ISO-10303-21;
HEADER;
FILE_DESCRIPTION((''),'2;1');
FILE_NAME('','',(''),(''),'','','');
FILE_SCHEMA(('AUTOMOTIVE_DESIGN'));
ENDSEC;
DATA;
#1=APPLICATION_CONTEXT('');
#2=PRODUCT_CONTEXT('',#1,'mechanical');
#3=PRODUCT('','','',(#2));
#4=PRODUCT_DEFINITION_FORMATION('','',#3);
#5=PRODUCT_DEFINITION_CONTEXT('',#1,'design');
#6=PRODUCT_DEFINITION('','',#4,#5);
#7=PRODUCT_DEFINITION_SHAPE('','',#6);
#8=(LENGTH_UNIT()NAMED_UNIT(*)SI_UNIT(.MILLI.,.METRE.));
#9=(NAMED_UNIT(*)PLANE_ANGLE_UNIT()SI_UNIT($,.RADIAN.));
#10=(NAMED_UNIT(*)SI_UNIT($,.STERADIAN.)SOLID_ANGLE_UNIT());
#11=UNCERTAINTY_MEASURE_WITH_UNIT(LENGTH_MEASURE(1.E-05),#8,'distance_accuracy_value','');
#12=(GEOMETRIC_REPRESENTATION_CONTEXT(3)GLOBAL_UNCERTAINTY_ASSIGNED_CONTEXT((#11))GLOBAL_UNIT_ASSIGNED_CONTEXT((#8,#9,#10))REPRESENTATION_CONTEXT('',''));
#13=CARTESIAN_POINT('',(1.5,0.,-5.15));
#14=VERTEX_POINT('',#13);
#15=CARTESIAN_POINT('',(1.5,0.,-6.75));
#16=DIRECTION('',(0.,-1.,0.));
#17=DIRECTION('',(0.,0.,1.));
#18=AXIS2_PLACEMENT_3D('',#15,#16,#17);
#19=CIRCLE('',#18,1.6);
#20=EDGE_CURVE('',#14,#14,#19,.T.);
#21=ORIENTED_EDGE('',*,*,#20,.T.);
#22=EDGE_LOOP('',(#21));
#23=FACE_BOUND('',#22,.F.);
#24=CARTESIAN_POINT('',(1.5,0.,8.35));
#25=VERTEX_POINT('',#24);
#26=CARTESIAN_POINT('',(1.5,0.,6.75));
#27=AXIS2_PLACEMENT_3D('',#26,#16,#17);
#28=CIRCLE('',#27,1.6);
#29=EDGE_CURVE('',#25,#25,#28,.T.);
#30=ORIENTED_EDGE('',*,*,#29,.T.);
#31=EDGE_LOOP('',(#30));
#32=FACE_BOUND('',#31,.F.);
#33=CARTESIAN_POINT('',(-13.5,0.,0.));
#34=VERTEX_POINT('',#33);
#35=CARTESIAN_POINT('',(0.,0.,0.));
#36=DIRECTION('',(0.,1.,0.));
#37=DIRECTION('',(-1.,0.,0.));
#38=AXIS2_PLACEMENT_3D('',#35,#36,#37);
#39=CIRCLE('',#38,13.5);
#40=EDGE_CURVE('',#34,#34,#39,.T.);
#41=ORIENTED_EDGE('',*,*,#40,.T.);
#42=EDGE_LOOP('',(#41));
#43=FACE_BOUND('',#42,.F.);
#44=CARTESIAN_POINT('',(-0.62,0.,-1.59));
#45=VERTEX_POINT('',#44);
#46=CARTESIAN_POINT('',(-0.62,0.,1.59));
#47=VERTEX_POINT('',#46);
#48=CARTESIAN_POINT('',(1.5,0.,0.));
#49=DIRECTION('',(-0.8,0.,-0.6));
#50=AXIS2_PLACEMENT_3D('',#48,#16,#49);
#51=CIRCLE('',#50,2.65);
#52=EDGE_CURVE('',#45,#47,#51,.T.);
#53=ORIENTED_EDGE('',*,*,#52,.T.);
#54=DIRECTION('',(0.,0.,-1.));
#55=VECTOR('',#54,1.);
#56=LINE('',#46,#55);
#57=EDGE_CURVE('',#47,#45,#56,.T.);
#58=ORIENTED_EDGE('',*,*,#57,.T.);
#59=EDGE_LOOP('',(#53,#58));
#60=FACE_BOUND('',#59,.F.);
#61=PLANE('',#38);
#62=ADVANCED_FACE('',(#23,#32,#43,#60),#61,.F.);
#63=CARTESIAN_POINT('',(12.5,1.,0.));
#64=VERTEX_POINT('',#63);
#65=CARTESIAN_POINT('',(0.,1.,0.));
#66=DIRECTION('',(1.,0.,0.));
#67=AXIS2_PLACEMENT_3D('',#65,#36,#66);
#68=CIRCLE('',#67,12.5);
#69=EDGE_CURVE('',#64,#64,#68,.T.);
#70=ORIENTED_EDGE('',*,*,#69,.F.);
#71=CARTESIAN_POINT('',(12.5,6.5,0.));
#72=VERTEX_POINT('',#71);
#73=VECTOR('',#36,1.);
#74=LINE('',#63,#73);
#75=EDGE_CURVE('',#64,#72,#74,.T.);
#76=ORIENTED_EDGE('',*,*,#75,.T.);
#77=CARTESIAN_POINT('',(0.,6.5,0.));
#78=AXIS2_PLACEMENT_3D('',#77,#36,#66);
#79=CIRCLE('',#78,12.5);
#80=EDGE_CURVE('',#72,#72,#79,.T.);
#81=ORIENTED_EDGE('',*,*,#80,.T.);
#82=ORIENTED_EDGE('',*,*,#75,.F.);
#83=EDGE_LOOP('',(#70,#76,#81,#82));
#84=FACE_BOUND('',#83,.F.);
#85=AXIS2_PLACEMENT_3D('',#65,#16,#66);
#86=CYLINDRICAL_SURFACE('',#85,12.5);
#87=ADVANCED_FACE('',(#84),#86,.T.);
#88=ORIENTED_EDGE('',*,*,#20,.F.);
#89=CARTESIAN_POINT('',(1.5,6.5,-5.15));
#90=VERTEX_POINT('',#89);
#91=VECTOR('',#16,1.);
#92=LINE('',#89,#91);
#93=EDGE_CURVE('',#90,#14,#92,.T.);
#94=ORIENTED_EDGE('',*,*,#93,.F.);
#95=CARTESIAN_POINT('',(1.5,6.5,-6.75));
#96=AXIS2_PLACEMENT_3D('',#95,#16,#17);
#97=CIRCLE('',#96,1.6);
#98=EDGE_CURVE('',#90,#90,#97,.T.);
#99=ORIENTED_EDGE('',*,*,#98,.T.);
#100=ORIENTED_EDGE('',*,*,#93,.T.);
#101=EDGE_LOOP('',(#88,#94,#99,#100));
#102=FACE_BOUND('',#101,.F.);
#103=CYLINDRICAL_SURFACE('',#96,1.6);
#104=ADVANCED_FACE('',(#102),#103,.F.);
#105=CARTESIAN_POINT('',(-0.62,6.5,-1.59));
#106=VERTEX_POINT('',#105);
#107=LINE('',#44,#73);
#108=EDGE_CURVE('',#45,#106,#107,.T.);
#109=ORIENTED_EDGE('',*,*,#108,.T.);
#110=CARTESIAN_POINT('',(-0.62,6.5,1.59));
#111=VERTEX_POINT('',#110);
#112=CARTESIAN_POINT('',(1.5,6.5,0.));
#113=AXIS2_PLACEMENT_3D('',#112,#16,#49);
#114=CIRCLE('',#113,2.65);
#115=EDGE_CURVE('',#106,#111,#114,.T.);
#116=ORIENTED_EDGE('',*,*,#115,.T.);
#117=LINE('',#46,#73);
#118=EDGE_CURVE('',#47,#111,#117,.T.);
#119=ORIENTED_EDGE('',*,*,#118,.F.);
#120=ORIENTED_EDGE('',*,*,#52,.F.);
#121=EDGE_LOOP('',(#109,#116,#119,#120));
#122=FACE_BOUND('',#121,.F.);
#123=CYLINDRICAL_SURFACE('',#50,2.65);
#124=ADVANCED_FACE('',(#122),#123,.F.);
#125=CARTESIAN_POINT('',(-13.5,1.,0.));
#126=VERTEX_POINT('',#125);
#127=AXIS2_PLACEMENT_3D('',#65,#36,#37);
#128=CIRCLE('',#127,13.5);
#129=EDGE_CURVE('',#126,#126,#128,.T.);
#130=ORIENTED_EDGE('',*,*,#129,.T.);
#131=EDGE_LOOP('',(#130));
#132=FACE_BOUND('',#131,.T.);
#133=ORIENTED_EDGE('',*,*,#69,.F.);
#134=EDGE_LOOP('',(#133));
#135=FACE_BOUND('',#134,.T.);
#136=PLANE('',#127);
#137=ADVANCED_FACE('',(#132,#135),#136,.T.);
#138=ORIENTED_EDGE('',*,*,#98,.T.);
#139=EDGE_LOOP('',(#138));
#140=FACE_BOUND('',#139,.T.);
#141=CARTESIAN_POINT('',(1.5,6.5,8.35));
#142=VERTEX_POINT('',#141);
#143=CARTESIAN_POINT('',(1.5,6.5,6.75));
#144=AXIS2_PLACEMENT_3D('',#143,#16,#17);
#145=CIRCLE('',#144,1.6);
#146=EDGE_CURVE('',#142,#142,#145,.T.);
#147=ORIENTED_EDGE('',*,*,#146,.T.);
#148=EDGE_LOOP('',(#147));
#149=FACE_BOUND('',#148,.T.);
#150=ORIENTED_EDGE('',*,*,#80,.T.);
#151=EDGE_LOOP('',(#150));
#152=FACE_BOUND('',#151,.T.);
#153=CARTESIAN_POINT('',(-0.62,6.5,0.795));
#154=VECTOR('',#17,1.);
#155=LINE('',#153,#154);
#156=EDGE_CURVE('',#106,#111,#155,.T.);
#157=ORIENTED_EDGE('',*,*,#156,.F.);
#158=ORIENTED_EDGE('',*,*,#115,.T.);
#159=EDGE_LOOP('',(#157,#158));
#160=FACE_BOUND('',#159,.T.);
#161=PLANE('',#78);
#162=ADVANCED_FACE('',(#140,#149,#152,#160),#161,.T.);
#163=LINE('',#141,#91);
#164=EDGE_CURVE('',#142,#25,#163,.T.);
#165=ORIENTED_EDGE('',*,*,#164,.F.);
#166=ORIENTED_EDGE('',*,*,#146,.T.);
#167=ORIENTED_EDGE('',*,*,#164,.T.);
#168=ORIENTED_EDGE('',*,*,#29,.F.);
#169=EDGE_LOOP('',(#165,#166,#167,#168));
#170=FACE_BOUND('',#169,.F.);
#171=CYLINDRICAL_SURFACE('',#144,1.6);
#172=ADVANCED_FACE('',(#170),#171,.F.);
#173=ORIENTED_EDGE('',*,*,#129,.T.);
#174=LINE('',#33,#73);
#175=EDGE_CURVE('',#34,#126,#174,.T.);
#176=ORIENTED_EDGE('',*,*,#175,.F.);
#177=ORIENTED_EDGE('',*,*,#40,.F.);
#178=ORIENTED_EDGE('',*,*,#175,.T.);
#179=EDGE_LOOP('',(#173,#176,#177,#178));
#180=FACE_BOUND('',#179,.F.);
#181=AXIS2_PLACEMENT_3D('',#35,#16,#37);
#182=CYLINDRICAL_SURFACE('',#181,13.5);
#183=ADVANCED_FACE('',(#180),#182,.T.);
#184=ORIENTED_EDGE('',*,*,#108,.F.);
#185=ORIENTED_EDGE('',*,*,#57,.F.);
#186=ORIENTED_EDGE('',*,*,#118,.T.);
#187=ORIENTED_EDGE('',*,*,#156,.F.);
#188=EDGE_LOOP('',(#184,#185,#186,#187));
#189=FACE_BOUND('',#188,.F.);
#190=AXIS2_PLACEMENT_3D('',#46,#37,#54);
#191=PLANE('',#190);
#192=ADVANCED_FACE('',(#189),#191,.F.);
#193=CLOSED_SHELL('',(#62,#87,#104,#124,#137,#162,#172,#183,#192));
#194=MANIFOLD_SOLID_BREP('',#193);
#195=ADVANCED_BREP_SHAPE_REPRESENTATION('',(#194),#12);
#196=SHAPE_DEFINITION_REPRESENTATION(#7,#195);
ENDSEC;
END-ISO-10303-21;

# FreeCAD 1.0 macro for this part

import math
import FreeCAD as App
import Part
import Sketcher

V = App.Vector
Q = App.Units.Quantity

doc = App.newDocument("Part")
body = doc.addObject("PartDesign::Body", "Body")

# Sketch on XZ plane
sketch1 = body.newObject("Sketcher::SketchObject", "Sketch")
sketch1.AttachmentSupport = (doc.getObject("XZ_Plane"), [""])
sketch1.MapMode = "FlatFace"
sketch1.addGeometry(Part.Circle(V(0, 0, 0), V(0, 0, 1), 14), False)
sketch1.addConstraint(Sketcher.Constraint("Coincident", 0, 3, -1, 1))
sketch1.addConstraint(Sketcher.Constraint("Diameter", 0, Q("27 mm")))
pad1 = body.newObject("PartDesign::Pad", "Pad")
pad1.Profile = sketch1
pad1.Length = 1
pad1.Reversed = True

# Sketch on XZ plane
sketch2 = body.newObject("Sketcher::SketchObject", "Sketch001")
sketch2.AttachmentSupport = (doc.getObject("XZ_Plane"), [""])
sketch2.MapMode = "FlatFace"
sketch2.AttachmentOffset = App.Placement(V(0, 0, -1), App.Rotation())
sketch2.addGeometry(Part.Circle(V(0, 0, 0), V(0, 0, 1), 12), False)
sketch2.addConstraint(Sketcher.Constraint("Coincident", 0, 3, -1, 1))
sketch2.addConstraint(Sketcher.Constraint("Diameter", 0, Q("25 mm")))
pad2 = body.newObject("PartDesign::Pad", "Pad001")
pad2.Profile = sketch2
pad2.Length = 5.5
pad2.Reversed = True

# Sketch on XZ plane
sketch3 = body.newObject("Sketcher::SketchObject", "Sketch002")
sketch3.AttachmentSupport = (doc.getObject("XZ_Plane"), [""])
sketch3.MapMode = "FlatFace"
sketch3.AttachmentOffset = App.Placement(V(0, 0, -6.5), App.Rotation())
sketch3.addGeometry(Part.Circle(V(1.5, 6.8, 0), V(0, 0, 1), 1.6), False)
sketch3.addGeometry(Part.Circle(V(1.5, -6.8, 0), V(0, 0, 1), 1.6), False)
sketch3.addConstraint(Sketcher.Constraint("Equal", 0, 1))
sketch3.addConstraint(Sketcher.Constraint("Symmetric", 0, 3, 1, 3, -1))
sketch3.addConstraint(Sketcher.Constraint("Diameter", 0, Q("3.2 mm")))
sketch3.addConstraint(Sketcher.Constraint("DistanceX", -1, 1, 0, 3, Q("1.5 mm")))
sketch3.addConstraint(Sketcher.Constraint("DistanceY", 1, 3, 0, 3, Q("13.5 mm")))
doc.recompute()
hole = body.newObject("PartDesign::Hole", "Hole")
hole.Profile = sketch3
hole.ThreadType = "None"
hole.Diameter = 3.2
hole.DepthType = "ThroughAll"
hole.Reversed = True

# Sketch on XZ plane
sketch4 = body.newObject("Sketcher::SketchObject", "Sketch003")
sketch4.AttachmentSupport = (doc.getObject("XZ_Plane"), [""])
sketch4.MapMode = "FlatFace"
sketch4.addGeometry(Part.LineSegment(V(-0.6, 1.6, 0), V(-0.6, -1.6, 0)), False)
sketch4.addGeometry(Part.ArcOfCircle(Part.Circle(V(1.5, 0, 0), V(0, 0, 1), 2.7), math.radians(-143), math.radians(143)), False)
sketch4.addConstraint(Sketcher.Constraint("Coincident", 0, 1, 1, 2))
sketch4.addConstraint(Sketcher.Constraint("Coincident", 1, 1, 0, 2))
sketch4.addConstraint(Sketcher.Constraint("Vertical", 0))
sketch4.addConstraint(Sketcher.Constraint("PointOnObject", 1, 3, -1))
sketch4.addConstraint(Sketcher.Constraint("Radius", 1, Q("2.65 mm")))
sketch4.addConstraint(Sketcher.Constraint("DistanceY", 0, 2, 0, 1, Q("3.18 mm")))
sketch4.addConstraint(Sketcher.Constraint("DistanceX", -1, 1, 1, 3, Q("1.5 mm")))
pocket1 = body.newObject("PartDesign::Pocket", "Pocket")
pocket1.Profile = sketch4
pocket1.Type = "ThroughAll"

doc.recompute()
